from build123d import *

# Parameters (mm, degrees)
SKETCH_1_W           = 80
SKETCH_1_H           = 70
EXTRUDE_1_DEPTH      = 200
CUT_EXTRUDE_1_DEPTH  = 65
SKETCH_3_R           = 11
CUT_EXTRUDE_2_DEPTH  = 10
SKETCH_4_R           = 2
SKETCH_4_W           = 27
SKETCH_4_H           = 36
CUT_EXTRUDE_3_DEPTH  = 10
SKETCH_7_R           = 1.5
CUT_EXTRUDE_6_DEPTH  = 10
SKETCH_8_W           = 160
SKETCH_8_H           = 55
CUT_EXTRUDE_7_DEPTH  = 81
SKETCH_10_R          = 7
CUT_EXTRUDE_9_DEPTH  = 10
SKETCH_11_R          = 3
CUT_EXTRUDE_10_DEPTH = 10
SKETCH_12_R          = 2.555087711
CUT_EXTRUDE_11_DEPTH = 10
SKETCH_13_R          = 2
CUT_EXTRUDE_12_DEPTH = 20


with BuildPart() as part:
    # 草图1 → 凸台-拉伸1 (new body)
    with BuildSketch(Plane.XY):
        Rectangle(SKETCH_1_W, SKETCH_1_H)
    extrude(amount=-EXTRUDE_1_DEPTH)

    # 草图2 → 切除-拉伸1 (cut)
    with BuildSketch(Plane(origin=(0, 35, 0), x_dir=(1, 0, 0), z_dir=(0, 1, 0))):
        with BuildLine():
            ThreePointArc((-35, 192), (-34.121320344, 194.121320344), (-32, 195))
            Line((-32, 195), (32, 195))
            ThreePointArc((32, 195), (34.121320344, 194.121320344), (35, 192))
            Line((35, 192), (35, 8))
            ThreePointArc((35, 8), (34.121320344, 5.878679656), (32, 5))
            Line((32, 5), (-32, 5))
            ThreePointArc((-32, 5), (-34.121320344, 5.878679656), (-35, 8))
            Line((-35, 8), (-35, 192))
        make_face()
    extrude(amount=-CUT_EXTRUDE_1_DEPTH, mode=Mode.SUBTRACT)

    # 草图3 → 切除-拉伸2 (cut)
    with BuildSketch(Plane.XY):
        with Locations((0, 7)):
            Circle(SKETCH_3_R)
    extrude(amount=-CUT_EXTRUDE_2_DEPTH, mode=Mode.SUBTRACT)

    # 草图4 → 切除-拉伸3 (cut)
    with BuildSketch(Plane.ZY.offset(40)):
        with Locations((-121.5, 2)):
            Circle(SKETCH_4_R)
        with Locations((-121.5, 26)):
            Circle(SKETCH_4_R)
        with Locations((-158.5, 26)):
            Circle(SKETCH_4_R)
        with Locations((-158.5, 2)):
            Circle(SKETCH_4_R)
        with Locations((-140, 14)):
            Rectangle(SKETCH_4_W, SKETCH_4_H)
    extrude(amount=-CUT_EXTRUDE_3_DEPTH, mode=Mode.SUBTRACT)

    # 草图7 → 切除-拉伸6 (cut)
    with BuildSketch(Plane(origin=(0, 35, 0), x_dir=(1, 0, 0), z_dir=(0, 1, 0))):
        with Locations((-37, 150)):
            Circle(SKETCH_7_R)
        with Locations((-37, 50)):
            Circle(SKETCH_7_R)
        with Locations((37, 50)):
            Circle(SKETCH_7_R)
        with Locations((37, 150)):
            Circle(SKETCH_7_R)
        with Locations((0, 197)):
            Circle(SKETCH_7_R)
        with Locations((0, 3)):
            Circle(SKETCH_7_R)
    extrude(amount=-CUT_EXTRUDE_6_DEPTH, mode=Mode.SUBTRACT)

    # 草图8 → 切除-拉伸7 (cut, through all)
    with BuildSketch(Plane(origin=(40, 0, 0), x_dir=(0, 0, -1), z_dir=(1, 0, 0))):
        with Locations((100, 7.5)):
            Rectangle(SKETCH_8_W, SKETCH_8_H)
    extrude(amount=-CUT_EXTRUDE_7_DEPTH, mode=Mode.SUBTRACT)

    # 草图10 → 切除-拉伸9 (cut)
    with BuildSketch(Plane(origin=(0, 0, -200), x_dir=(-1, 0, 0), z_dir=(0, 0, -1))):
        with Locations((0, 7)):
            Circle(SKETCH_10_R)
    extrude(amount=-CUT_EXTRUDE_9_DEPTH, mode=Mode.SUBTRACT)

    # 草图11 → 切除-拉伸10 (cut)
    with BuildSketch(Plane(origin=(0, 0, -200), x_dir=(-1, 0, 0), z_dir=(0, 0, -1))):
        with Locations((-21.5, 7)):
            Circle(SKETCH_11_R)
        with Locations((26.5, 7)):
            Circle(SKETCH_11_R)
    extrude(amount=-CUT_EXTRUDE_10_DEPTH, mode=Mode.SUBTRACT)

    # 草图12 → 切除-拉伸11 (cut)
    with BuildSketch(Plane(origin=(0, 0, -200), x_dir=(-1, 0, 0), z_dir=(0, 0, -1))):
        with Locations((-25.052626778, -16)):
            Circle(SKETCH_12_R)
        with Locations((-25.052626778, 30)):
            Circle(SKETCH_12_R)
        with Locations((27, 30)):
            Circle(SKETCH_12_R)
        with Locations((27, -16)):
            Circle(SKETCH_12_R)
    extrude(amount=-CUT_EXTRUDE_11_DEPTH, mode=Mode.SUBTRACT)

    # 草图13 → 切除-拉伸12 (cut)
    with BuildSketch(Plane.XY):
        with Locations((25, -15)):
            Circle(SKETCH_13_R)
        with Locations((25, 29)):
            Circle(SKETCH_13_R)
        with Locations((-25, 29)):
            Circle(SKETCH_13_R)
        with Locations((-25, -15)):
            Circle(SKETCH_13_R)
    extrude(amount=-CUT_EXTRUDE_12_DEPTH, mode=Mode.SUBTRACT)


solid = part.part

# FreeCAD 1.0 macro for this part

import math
import FreeCAD as App
import Part
import Sketcher
from FreeCAD import Vector
Q = App.Units.Quantity

doc = App.newDocument("Part")
params = doc.addObject("Spreadsheet::Sheet", "Params")
for row, (alias, value) in enumerate([
    ("sketch1_width", "80 mm"),
    ("sketch1_height", "70 mm"),
    ("pad1_length", "200 mm"),
    ("sketch2_radius", "3 mm"),
    ("sketch2_width", "64 mm"),
    ("sketch2_height", "184 mm"),
    ("pocket1_length", "65 mm"),
    ("sketch3_diameter", "22 mm"),
    ("pocket2_length", "10 mm"),
    ("sketch4_diameter", "4 mm"),
    ("sketch4_width", "36 mm"),
    ("sketch4_height", "27 mm"),
    ("pocket3_length", "10 mm"),
    ("sketch5_diameter", "3 mm"),
    ("pocket4_length", "10 mm"),
    ("sketch6_width", "55 mm"),
    ("sketch6_height", "160 mm"),
    ("sketch7_diameter", "14 mm"),
    ("pocket6_length", "10 mm"),
    ("sketch8_diameter", "6 mm"),
    ("pocket7_length", "10 mm"),
    ("pocket8_length", "10 mm"),
    ("sketch10_diameter", "4 mm"),
    ("pocket9_length", "20 mm"),
], start=1):
    params.set(f"A{row}", alias)
    params.set(f"B{row}", "=" + value)
    params.setAlias(f"B{row}", alias)

body = doc.addObject("PartDesign::Body", "Body")

sketch1 = body.newObject("Sketcher::SketchObject", "Sketch")
sketch1.AttachmentSupport = (doc.getObject("XY_Plane"), [""])
sketch1.MapMode = "FlatFace"
sketch1.addGeometry(Part.LineSegment(Vector(-40, 35, 0), Vector(-40, -35, 0)), False)
sketch1.addGeometry(Part.LineSegment(Vector(-40, -35, 0), Vector(40, -35, 0)), False)
sketch1.addGeometry(Part.LineSegment(Vector(40, -35, 0), Vector(40, 35, 0)), False)
sketch1.addGeometry(Part.LineSegment(Vector(40, 35, 0), Vector(-40, 35, 0)), False)
sketch1.addConstraint(Sketcher.Constraint("Coincident", 0, 2, 1, 1))
sketch1.addConstraint(Sketcher.Constraint("Coincident", 1, 2, 2, 1))
sketch1.addConstraint(Sketcher.Constraint("Coincident", 2, 2, 3, 1))
sketch1.addConstraint(Sketcher.Constraint("Coincident", 3, 2, 0, 1))
sketch1.addConstraint(Sketcher.Constraint("Vertical", 0))
sketch1.addConstraint(Sketcher.Constraint("Horizontal", 1))
sketch1.addConstraint(Sketcher.Constraint("Vertical", 2))
sketch1.addConstraint(Sketcher.Constraint("Horizontal", 3))
sketch1.addConstraint(Sketcher.Constraint("Symmetric", 0, 2, 2, 2, -1, 1))
sketch1.addConstraint(Sketcher.Constraint("DistanceX", 1, 1, 1, 2, Q("80 mm")))
sketch1.addConstraint(Sketcher.Constraint("DistanceY", 0, 2, 0, 1, Q("70 mm")))
sketch1.setExpression("Constraints[9]", "Params.sketch1_width")
sketch1.setExpression("Constraints[10]", "Params.sketch1_height")
pad1 = body.newObject("PartDesign::Pad", "Pad")
pad1.Profile = sketch1
pad1.setExpression("Length", "Params.pad1_length")
pad1.Reversed = True

sketch2 = body.newObject("Sketcher::SketchObject", "Sketch001")
sketch2.AttachmentSupport = (doc.getObject("XZ_Plane"), [""])
sketch2.MapMode = "FlatFace"
sketch2.AttachmentOffset = App.Placement(Vector(0, 0, -35), App.Rotation())
sketch2.addGeometry(Part.ArcOfCircle(Part.Circle(Vector(-32, -192, 0), Vector(0, 0, 1), 3), math.radians(180), math.radians(270)), False)
sketch2.addGeometry(Part.LineSegment(Vector(-35, -192, 0), Vector(-35, -8, 0)), False)
sketch2.addGeometry(Part.ArcOfCircle(Part.Circle(Vector(-32, -8, 0), Vector(0, 0, 1), 3), math.radians(90), math.radians(180)), False)
sketch2.addGeometry(Part.LineSegment(Vector(-32, -5, 0), Vector(32, -5, 0)), False)
sketch2.addGeometry(Part.ArcOfCircle(Part.Circle(Vector(32, -8, 0), Vector(0, 0, 1), 3), math.radians(0), math.radians(90)), False)
sketch2.addGeometry(Part.LineSegment(Vector(35, -8, 0), Vector(35, -192, 0)), False)
sketch2.addGeometry(Part.ArcOfCircle(Part.Circle(Vector(32, -192, 0), Vector(0, 0, 1), 3), math.radians(-90), math.radians(0)), False)
sketch2.addGeometry(Part.LineSegment(Vector(32, -195, 0), Vector(-32, -195, 0)), False)
sketch2.addConstraint(Sketcher.Constraint("Tangent", 0, 1, 1, 1))
sketch2.addConstraint(Sketcher.Constraint("Tangent", 1, 2, 2, 2))
sketch2.addConstraint(Sketcher.Constraint("Tangent", 2, 1, 3, 1))
sketch2.addConstraint(Sketcher.Constraint("Tangent", 3, 2, 4, 2))
sketch2.addConstraint(Sketcher.Constraint("Tangent", 4, 1, 5, 1))
sketch2.addConstraint(Sketcher.Constraint("Tangent", 5, 2, 6, 2))
sketch2.addConstraint(Sketcher.Constraint("Tangent", 6, 1, 7, 1))
sketch2.addConstraint(Sketcher.Constraint("Tangent", 7, 2, 0, 2))
sketch2.addConstraint(Sketcher.Constraint("Vertical", 1))
sketch2.addConstraint(Sketcher.Constraint("Horizontal", 3))
sketch2.addConstraint(Sketcher.Constraint("Vertical", 5))
sketch2.addConstraint(Sketcher.Constraint("Horizontal", 7))
sketch2.addConstraint(Sketcher.Constraint("Equal", 0, 2))
sketch2.addConstraint(Sketcher.Constraint("Equal", 2, 4))
sketch2.addConstraint(Sketcher.Constraint("Equal", 4, 6))
sketch2.addConstraint(Sketcher.Constraint("Radius", 0, Q("3 mm")))
sketch2.addConstraint(Sketcher.Constraint("DistanceX", 3, 1, 3, 2, Q("64 mm")))
sketch2.addConstraint(Sketcher.Constraint("DistanceY", 1, 1, 1, 2, Q("184 mm")))
sketch2.addConstraint(Sketcher.Constraint("DistanceX", 0, 3, -1, 1, Q("32 mm")))
sketch2.addConstraint(Sketcher.Constraint("DistanceY", 0, 3, -1, 1, Q("192 mm")))
sketch2.setExpression("Constraints[15]", "Params.sketch2_radius")
sketch2.setExpression("Constraints[16]", "Params.sketch2_width")
sketch2.setExpression("Constraints[17]", "Params.sketch2_height")
pocket1 = body.newObject("PartDesign::Pocket", "Pocket")
pocket1.Profile = sketch2
pocket1.setExpression("Length", "Params.pocket1_length")
pocket1.Reversed = True

sketch3 = body.newObject("Sketcher::SketchObject", "Sketch002")
sketch3.AttachmentSupport = (doc.getObject("XY_Plane"), [""])
sketch3.MapMode = "FlatFace"
sketch3.addGeometry(Part.Circle(Vector(0, 7, 0), Vector(0, 0, 1), 11), False)
sketch3.addConstraint(Sketcher.Constraint("PointOnObject", 0, 3, -2))
sketch3.addConstraint(Sketcher.Constraint("Diameter", 0, Q("22 mm")))
sketch3.addConstraint(Sketcher.Constraint("DistanceY", -1, 1, 0, 3, Q("7 mm")))
sketch3.setExpression("Constraints[1]", "Params.sketch3_diameter")
pocket2 = body.newObject("PartDesign::Pocket", "Pocket001")
pocket2.Profile = sketch3
pocket2.setExpression("Length", "Params.pocket2_length")

sketch4 = body.newObject("Sketcher::SketchObject", "Sketch003")
sketch4.AttachmentSupport = (doc.getObject("YZ_Plane"), [""])
sketch4.MapMode = "FlatFace"
sketch4.AttachmentOffset = App.Placement(Vector(0, 0, -40), App.Rotation())
sketch4.addGeometry(Part.Circle(Vector(2, -121.5, 0), Vector(0, 0, 1), 2), False)
sketch4.addGeometry(Part.Circle(Vector(26, -121.5, 0), Vector(0, 0, 1), 2), False)
sketch4.addGeometry(Part.Circle(Vector(26, -158.5, 0), Vector(0, 0, 1), 2), False)
sketch4.addGeometry(Part.Circle(Vector(2, -158.5, 0), Vector(0, 0, 1), 2), False)
sketch4.addGeometry(Part.LineSegment(Vector(32, -153.5, 0), Vector(-4, -153.5, 0)), False)
sketch4.addGeometry(Part.LineSegment(Vector(-4, -153.5, 0), Vector(-4, -126.5, 0)), False)
sketch4.addGeometry(Part.LineSegment(Vector(-4, -126.5, 0), Vector(32, -126.5, 0)), False)
sketch4.addGeometry(Part.LineSegment(Vector(32, -126.5, 0), Vector(32, -153.5, 0)), False)
sketch4.addConstraint(Sketcher.Constraint("Coincident", 4, 2, 5, 1))
sketch4.addConstraint(Sketcher.Constraint("Coincident", 5, 2, 6, 1))
sketch4.addConstraint(Sketcher.Constraint("Coincident", 6, 2, 7, 1))
sketch4.addConstraint(Sketcher.Constraint("Coincident", 7, 2, 4, 1))
sketch4.addConstraint(Sketcher.Constraint("Horizontal", 4))
sketch4.addConstraint(Sketcher.Constraint("Vertical", 5))
sketch4.addConstraint(Sketcher.Constraint("Horizontal", 6))
sketch4.addConstraint(Sketcher.Constraint("Vertical", 7))
sketch4.addConstraint(Sketcher.Constraint("Equal", 0, 1))
sketch4.addConstraint(Sketcher.Constraint("Equal", 1, 2))
sketch4.addConstraint(Sketcher.Constraint("Equal", 2, 3))
sketch4.addConstraint(Sketcher.Constraint("Horizontal", 0, 3, 1, 3))
sketch4.addConstraint(Sketcher.Constraint("Horizontal", 2, 3, 3, 3))
sketch4.addConstraint(Sketcher.Constraint("Vertical", 1, 3, 2, 3))
sketch4.addConstraint(Sketcher.Constraint("Vertical", 0, 3, 3, 3))
sketch4.addConstraint(Sketcher.Constraint("Diameter", 0, Q("4 mm")))
sketch4.addConstraint(Sketcher.Constraint("DistanceX", 4, 2, 4, 1, Q("36 mm")))
sketch4.addConstraint(Sketcher.Constraint("DistanceY", 5, 1, 5, 2, Q("27 mm")))
sketch4.addConstraint(Sketcher.Constraint("DistanceX", -1, 1, 0, 3, Q("2 mm")))
sketch4.addConstraint(Sketcher.Constraint("DistanceX", -1, 1, 1, 3, Q("26 mm")))
sketch4.addConstraint(Sketcher.Constraint("DistanceX", 4, 2, -1, 1, Q("4 mm")))
sketch4.addConstraint(Sketcher.Constraint("DistanceY", 2, 3, 1, 3, Q("37 mm")))
sketch4.addConstraint(Sketcher.Constraint("DistanceY", 3, 3, 4, 2, Q("5 mm")))
sketch4.addConstraint(Sketcher.Constraint("DistanceY", 0, 3, -1, 1, Q("121.5 mm")))
sketch4.setExpression("Constraints[15]", "Params.sketch4_diameter")
sketch4.setExpression("Constraints[16]", "Params.sketch4_width")
sketch4.setExpression("Constraints[17]", "Params.sketch4_height")
pocket3 = body.newObject("PartDesign::Pocket", "Pocket002")
pocket3.Profile = sketch4
pocket3.setExpression("Length", "Params.pocket3_length")
pocket3.Reversed = True

sketch5 = body.newObject("Sketcher::SketchObject", "Sketch004")
sketch5.AttachmentSupport = (doc.getObject("XZ_Plane"), [""])
sketch5.MapMode = "FlatFace"
sketch5.AttachmentOffset = App.Placement(Vector(0, 0, -35), App.Rotation())
sketch5.addGeometry(Part.Circle(Vector(-37, -150, 0), Vector(0, 0, 1), 1.5), False)
sketch5.addGeometry(Part.Circle(Vector(-37, -50, 0), Vector(0, 0, 1), 1.5), False)
sketch5.addGeometry(Part.Circle(Vector(37, -50, 0), Vector(0, 0, 1), 1.5), False)
sketch5.addGeometry(Part.Circle(Vector(37, -150, 0), Vector(0, 0, 1), 1.5), False)
sketch5.addGeometry(Part.Circle(Vector(0, -197, 0), Vector(0, 0, 1), 1.5), False)
sketch5.addGeometry(Part.Circle(Vector(0, -3, 0), Vector(0, 0, 1), 1.5), False)
sketch5.addConstraint(Sketcher.Constraint("Equal", 0, 1))
sketch5.addConstraint(Sketcher.Constraint("Equal", 1, 2))
sketch5.addConstraint(Sketcher.Constraint("Equal", 2, 3))
sketch5.addConstraint(Sketcher.Constraint("Equal", 3, 4))
sketch5.addConstraint(Sketcher.Constraint("Equal", 4, 5))
sketch5.addConstraint(Sketcher.Constraint("Symmetric", 1, 3, 2, 3, -2))
sketch5.addConstraint(Sketcher.Constraint("Symmetric", 0, 3, 3, 3, -2))
sketch5.addConstraint(Sketcher.Constraint("PointOnObject", 4, 3, -2))
sketch5.addConstraint(Sketcher.Constraint("PointOnObject", 5, 3, -2))
sketch5.addConstraint(Sketcher.Constraint("Vertical", 0, 3, 1, 3))
sketch5.addConstraint(Sketcher.Constraint("Diameter", 0, Q("3 mm")))
sketch5.addConstraint(Sketcher.Constraint("DistanceX", 0, 3, -1, 1, Q("37 mm")))
sketch5.addConstraint(Sketcher.Constraint("DistanceY", 0, 3, -1, 1, Q("150 mm")))
sketch5.addConstraint(Sketcher.Constraint("DistanceY", 1, 3, -1, 1, Q("50 mm")))
sketch5.addConstraint(Sketcher.Constraint("DistanceY", 4, 3, -1, 1, Q("197 mm")))
sketch5.addConstraint(Sketcher.Constraint("DistanceY", 5, 3, -1, 1, Q("3 mm")))
sketch5.setExpression("Constraints[10]", "Params.sketch5_diameter")
pocket4 = body.newObject("PartDesign::Pocket", "Pocket003")
pocket4.Profile = sketch5
pocket4.setExpression("Length", "Params.pocket4_length")
pocket4.Reversed = True

sketch6 = body.newObject("Sketcher::SketchObject", "Sketch005")
sketch6.AttachmentSupport = (doc.getObject("YZ_Plane"), [""])
sketch6.MapMode = "FlatFace"
sketch6.AttachmentOffset = App.Placement(Vector(0, 0, 40), App.Rotation())
sketch6.addGeometry(Part.LineSegment(Vector(35, -20, 0), Vector(-20, -20, 0)), False)
sketch6.addGeometry(Part.LineSegment(Vector(-20, -20, 0), Vector(-20, -180, 0)), False)
sketch6.addGeometry(Part.LineSegment(Vector(-20, -180, 0), Vector(35, -180, 0)), False)
sketch6.addGeometry(Part.LineSegment(Vector(35, -180, 0), Vector(35, -20, 0)), False)
sketch6.addConstraint(Sketcher.Constraint("Coincident", 0, 2, 1, 1))
sketch6.addConstraint(Sketcher.Constraint("Coincident", 1, 2, 2, 1))
sketch6.addConstraint(Sketcher.Constraint("Coincident", 2, 2, 3, 1))
sketch6.addConstraint(Sketcher.Constraint("Coincident", 3, 2, 0, 1))
sketch6.addConstraint(Sketcher.Constraint("Horizontal", 0))
sketch6.addConstraint(Sketcher.Constraint("Vertical", 1))
sketch6.addConstraint(Sketcher.Constraint("Horizontal", 2))
sketch6.addConstraint(Sketcher.Constraint("Vertical", 3))
sketch6.addConstraint(Sketcher.Constraint("DistanceX", 0, 2, 0, 1, Q("55 mm")))
sketch6.addConstraint(Sketcher.Constraint("DistanceY", 1, 2, 1, 1, Q("160 mm")))
sketch6.addConstraint(Sketcher.Constraint("DistanceX", 0, 2, -1, 1, Q("20 mm")))
sketch6.addConstraint(Sketcher.Constraint("DistanceY", 0, 2, -1, 1, Q("20 mm")))
sketch6.setExpression("Constraints[8]", "Params.sketch6_width")
sketch6.setExpression("Constraints[9]", "Params.sketch6_height")
pocket5 = body.newObject("PartDesign::Pocket", "Pocket004")
pocket5.Profile = sketch6
pocket5.Type = "ThroughAll"

sketch7 = body.newObject("Sketcher::SketchObject", "Sketch006")
sketch7.AttachmentSupport = (doc.getObject("XY_Plane"), [""])
sketch7.MapMode = "FlatFace"
sketch7.AttachmentOffset = App.Placement(Vector(0, 0, -200), App.Rotation())
sketch7.addGeometry(Part.Circle(Vector(0, 7, 0), Vector(0, 0, 1), 7), False)
sketch7.addConstraint(Sketcher.Constraint("PointOnObject", 0, 3, -2))
sketch7.addConstraint(Sketcher.Constraint("Diameter", 0, Q("14 mm")))
sketch7.addConstraint(Sketcher.Constraint("DistanceY", -1, 1, 0, 3, Q("7 mm")))
sketch7.setExpression("Constraints[1]", "Params.sketch7_diameter")
pocket6 = body.newObject("PartDesign::Pocket", "Pocket005")
pocket6.Profile = sketch7
pocket6.setExpression("Length", "Params.pocket6_length")
pocket6.Reversed = True

sketch8 = body.newObject("Sketcher::SketchObject", "Sketch007")
sketch8.AttachmentSupport = (doc.getObject("XY_Plane"), [""])
sketch8.MapMode = "FlatFace"
sketch8.AttachmentOffset = App.Placement(Vector(0, 0, -200), App.Rotation())
sketch8.addGeometry(Part.Circle(Vector(21.5, 7, 0), Vector(0, 0, 1), 3), False)
sketch8.addGeometry(Part.Circle(Vector(-26.5, 7, 0), Vector(0, 0, 1), 3), False)
sketch8.addConstraint(Sketcher.Constraint("Equal", 0, 1))
sketch8.addConstraint(Sketcher.Constraint("Horizontal", 0, 3, 1, 3))
sketch8.addConstraint(Sketcher.Constraint("Diameter", 0, Q("6 mm")))
sketch8.addConstraint(Sketcher.Constraint("DistanceY", -1, 1, 0, 3, Q("7 mm")))
sketch8.addConstraint(Sketcher.Constraint("DistanceX", 1, 3, 0, 3, Q("48 mm")))
sketch8.addConstraint(Sketcher.Constraint("DistanceX", -1, 1, 0, 3, Q("21.5 mm")))
sketch8.setExpression("Constraints[2]", "Params.sketch8_diameter")
pocket7 = body.newObject("PartDesign::Pocket", "Pocket006")
pocket7.Profile = sketch8
pocket7.setExpression("Length", "Params.pocket7_length")
pocket7.Reversed = True

sketch9 = body.newObject("Sketcher::SketchObject", "Sketch008")
sketch9.AttachmentSupport = (doc.getObject("XY_Plane"), [""])
sketch9.MapMode = "FlatFace"
sketch9.AttachmentOffset = App.Placement(Vector(0, 0, -200), App.Rotation())
sketch9.addGeometry(Part.Circle(Vector(25.1, -16, 0), Vector(0, 0, 1), 2.6), False)
sketch9.addGeometry(Part.Circle(Vector(25.1, 30, 0), Vector(0, 0, 1), 2.6), False)
sketch9.addGeometry(Part.Circle(Vector(-27, 30, 0), Vector(0, 0, 1), 2.6), False)
sketch9.addGeometry(Part.Circle(Vector(-27, -16, 0), Vector(0, 0, 1), 2.6), False)
sketch9.addConstraint(Sketcher.Constraint("Equal", 0, 1))
sketch9.addConstraint(Sketcher.Constraint("Equal", 1, 2))
sketch9.addConstraint(Sketcher.Constraint("Equal", 2, 3))
sketch9.addConstraint(Sketcher.Constraint("Horizontal", 1, 3, 2, 3))
sketch9.addConstraint(Sketcher.Constraint("Horizontal", 0, 3, 3, 3))
sketch9.addConstraint(Sketcher.Constraint("Vertical", 0, 3, 1, 3))
sketch9.addConstraint(Sketcher.Constraint("Vertical", 2, 3, 3, 3))
sketch9.addConstraint(Sketcher.Constraint("DistanceY", 0, 3, -1, 1, Q("16 mm")))
sketch9.addConstraint(Sketcher.Constraint("DistanceY", -1, 1, 1, 3, Q("30 mm")))
sketch9.addConstraint(Sketcher.Constraint("DistanceX", 2, 3, -1, 1, Q("27 mm")))
sketch9.addConstraint(Sketcher.Constraint("Diameter", 0, Q("5.110175 mm")))
sketch9.addConstraint(Sketcher.Constraint("DistanceX", -1, 1, 0, 3, Q("25.052627 mm")))
pocket8 = body.newObject("PartDesign::Pocket", "Pocket007")
pocket8.Profile = sketch9
pocket8.setExpression("Length", "Params.pocket8_length")
pocket8.Reversed = True

sketch10 = body.newObject("Sketcher::SketchObject", "Sketch009")
sketch10.AttachmentSupport = (doc.getObject("XY_Plane"), [""])
sketch10.MapMode = "FlatFace"
sketch10.addGeometry(Part.Circle(Vector(25, -15, 0), Vector(0, 0, 1), 2), False)
sketch10.addGeometry(Part.Circle(Vector(25, 29, 0), Vector(0, 0, 1), 2), False)
sketch10.addGeometry(Part.Circle(Vector(-25, 29, 0), Vector(0, 0, 1), 2), False)
sketch10.addGeometry(Part.Circle(Vector(-25, -15, 0), Vector(0, 0, 1), 2), False)
sketch10.addConstraint(Sketcher.Constraint("Equal", 0, 1))
sketch10.addConstraint(Sketcher.Constraint("Equal", 1, 2))
sketch10.addConstraint(Sketcher.Constraint("Equal", 2, 3))
sketch10.addConstraint(Sketcher.Constraint("Symmetric", 1, 3, 2, 3, -2))
sketch10.addConstraint(Sketcher.Constraint("Symmetric", 0, 3, 3, 3, -2))
sketch10.addConstraint(Sketcher.Constraint("Vertical", 0, 3, 1, 3))
sketch10.addConstraint(Sketcher.Constraint("Diameter", 0, Q("4 mm")))
sketch10.addConstraint(Sketcher.Constraint("DistanceX", -1, 1, 0, 3, Q("25 mm")))
sketch10.addConstraint(Sketcher.Constraint("DistanceY", 0, 3, -1, 1, Q("15 mm")))
sketch10.addConstraint(Sketcher.Constraint("DistanceY", -1, 1, 1, 3, Q("29 mm")))
sketch10.setExpression("Constraints[6]", "Params.sketch10_diameter")
pocket9 = body.newObject("PartDesign::Pocket", "Pocket008")
pocket9.Profile = sketch10
pocket9.setExpression("Length", "Params.pocket9_length")

doc.recompute()
